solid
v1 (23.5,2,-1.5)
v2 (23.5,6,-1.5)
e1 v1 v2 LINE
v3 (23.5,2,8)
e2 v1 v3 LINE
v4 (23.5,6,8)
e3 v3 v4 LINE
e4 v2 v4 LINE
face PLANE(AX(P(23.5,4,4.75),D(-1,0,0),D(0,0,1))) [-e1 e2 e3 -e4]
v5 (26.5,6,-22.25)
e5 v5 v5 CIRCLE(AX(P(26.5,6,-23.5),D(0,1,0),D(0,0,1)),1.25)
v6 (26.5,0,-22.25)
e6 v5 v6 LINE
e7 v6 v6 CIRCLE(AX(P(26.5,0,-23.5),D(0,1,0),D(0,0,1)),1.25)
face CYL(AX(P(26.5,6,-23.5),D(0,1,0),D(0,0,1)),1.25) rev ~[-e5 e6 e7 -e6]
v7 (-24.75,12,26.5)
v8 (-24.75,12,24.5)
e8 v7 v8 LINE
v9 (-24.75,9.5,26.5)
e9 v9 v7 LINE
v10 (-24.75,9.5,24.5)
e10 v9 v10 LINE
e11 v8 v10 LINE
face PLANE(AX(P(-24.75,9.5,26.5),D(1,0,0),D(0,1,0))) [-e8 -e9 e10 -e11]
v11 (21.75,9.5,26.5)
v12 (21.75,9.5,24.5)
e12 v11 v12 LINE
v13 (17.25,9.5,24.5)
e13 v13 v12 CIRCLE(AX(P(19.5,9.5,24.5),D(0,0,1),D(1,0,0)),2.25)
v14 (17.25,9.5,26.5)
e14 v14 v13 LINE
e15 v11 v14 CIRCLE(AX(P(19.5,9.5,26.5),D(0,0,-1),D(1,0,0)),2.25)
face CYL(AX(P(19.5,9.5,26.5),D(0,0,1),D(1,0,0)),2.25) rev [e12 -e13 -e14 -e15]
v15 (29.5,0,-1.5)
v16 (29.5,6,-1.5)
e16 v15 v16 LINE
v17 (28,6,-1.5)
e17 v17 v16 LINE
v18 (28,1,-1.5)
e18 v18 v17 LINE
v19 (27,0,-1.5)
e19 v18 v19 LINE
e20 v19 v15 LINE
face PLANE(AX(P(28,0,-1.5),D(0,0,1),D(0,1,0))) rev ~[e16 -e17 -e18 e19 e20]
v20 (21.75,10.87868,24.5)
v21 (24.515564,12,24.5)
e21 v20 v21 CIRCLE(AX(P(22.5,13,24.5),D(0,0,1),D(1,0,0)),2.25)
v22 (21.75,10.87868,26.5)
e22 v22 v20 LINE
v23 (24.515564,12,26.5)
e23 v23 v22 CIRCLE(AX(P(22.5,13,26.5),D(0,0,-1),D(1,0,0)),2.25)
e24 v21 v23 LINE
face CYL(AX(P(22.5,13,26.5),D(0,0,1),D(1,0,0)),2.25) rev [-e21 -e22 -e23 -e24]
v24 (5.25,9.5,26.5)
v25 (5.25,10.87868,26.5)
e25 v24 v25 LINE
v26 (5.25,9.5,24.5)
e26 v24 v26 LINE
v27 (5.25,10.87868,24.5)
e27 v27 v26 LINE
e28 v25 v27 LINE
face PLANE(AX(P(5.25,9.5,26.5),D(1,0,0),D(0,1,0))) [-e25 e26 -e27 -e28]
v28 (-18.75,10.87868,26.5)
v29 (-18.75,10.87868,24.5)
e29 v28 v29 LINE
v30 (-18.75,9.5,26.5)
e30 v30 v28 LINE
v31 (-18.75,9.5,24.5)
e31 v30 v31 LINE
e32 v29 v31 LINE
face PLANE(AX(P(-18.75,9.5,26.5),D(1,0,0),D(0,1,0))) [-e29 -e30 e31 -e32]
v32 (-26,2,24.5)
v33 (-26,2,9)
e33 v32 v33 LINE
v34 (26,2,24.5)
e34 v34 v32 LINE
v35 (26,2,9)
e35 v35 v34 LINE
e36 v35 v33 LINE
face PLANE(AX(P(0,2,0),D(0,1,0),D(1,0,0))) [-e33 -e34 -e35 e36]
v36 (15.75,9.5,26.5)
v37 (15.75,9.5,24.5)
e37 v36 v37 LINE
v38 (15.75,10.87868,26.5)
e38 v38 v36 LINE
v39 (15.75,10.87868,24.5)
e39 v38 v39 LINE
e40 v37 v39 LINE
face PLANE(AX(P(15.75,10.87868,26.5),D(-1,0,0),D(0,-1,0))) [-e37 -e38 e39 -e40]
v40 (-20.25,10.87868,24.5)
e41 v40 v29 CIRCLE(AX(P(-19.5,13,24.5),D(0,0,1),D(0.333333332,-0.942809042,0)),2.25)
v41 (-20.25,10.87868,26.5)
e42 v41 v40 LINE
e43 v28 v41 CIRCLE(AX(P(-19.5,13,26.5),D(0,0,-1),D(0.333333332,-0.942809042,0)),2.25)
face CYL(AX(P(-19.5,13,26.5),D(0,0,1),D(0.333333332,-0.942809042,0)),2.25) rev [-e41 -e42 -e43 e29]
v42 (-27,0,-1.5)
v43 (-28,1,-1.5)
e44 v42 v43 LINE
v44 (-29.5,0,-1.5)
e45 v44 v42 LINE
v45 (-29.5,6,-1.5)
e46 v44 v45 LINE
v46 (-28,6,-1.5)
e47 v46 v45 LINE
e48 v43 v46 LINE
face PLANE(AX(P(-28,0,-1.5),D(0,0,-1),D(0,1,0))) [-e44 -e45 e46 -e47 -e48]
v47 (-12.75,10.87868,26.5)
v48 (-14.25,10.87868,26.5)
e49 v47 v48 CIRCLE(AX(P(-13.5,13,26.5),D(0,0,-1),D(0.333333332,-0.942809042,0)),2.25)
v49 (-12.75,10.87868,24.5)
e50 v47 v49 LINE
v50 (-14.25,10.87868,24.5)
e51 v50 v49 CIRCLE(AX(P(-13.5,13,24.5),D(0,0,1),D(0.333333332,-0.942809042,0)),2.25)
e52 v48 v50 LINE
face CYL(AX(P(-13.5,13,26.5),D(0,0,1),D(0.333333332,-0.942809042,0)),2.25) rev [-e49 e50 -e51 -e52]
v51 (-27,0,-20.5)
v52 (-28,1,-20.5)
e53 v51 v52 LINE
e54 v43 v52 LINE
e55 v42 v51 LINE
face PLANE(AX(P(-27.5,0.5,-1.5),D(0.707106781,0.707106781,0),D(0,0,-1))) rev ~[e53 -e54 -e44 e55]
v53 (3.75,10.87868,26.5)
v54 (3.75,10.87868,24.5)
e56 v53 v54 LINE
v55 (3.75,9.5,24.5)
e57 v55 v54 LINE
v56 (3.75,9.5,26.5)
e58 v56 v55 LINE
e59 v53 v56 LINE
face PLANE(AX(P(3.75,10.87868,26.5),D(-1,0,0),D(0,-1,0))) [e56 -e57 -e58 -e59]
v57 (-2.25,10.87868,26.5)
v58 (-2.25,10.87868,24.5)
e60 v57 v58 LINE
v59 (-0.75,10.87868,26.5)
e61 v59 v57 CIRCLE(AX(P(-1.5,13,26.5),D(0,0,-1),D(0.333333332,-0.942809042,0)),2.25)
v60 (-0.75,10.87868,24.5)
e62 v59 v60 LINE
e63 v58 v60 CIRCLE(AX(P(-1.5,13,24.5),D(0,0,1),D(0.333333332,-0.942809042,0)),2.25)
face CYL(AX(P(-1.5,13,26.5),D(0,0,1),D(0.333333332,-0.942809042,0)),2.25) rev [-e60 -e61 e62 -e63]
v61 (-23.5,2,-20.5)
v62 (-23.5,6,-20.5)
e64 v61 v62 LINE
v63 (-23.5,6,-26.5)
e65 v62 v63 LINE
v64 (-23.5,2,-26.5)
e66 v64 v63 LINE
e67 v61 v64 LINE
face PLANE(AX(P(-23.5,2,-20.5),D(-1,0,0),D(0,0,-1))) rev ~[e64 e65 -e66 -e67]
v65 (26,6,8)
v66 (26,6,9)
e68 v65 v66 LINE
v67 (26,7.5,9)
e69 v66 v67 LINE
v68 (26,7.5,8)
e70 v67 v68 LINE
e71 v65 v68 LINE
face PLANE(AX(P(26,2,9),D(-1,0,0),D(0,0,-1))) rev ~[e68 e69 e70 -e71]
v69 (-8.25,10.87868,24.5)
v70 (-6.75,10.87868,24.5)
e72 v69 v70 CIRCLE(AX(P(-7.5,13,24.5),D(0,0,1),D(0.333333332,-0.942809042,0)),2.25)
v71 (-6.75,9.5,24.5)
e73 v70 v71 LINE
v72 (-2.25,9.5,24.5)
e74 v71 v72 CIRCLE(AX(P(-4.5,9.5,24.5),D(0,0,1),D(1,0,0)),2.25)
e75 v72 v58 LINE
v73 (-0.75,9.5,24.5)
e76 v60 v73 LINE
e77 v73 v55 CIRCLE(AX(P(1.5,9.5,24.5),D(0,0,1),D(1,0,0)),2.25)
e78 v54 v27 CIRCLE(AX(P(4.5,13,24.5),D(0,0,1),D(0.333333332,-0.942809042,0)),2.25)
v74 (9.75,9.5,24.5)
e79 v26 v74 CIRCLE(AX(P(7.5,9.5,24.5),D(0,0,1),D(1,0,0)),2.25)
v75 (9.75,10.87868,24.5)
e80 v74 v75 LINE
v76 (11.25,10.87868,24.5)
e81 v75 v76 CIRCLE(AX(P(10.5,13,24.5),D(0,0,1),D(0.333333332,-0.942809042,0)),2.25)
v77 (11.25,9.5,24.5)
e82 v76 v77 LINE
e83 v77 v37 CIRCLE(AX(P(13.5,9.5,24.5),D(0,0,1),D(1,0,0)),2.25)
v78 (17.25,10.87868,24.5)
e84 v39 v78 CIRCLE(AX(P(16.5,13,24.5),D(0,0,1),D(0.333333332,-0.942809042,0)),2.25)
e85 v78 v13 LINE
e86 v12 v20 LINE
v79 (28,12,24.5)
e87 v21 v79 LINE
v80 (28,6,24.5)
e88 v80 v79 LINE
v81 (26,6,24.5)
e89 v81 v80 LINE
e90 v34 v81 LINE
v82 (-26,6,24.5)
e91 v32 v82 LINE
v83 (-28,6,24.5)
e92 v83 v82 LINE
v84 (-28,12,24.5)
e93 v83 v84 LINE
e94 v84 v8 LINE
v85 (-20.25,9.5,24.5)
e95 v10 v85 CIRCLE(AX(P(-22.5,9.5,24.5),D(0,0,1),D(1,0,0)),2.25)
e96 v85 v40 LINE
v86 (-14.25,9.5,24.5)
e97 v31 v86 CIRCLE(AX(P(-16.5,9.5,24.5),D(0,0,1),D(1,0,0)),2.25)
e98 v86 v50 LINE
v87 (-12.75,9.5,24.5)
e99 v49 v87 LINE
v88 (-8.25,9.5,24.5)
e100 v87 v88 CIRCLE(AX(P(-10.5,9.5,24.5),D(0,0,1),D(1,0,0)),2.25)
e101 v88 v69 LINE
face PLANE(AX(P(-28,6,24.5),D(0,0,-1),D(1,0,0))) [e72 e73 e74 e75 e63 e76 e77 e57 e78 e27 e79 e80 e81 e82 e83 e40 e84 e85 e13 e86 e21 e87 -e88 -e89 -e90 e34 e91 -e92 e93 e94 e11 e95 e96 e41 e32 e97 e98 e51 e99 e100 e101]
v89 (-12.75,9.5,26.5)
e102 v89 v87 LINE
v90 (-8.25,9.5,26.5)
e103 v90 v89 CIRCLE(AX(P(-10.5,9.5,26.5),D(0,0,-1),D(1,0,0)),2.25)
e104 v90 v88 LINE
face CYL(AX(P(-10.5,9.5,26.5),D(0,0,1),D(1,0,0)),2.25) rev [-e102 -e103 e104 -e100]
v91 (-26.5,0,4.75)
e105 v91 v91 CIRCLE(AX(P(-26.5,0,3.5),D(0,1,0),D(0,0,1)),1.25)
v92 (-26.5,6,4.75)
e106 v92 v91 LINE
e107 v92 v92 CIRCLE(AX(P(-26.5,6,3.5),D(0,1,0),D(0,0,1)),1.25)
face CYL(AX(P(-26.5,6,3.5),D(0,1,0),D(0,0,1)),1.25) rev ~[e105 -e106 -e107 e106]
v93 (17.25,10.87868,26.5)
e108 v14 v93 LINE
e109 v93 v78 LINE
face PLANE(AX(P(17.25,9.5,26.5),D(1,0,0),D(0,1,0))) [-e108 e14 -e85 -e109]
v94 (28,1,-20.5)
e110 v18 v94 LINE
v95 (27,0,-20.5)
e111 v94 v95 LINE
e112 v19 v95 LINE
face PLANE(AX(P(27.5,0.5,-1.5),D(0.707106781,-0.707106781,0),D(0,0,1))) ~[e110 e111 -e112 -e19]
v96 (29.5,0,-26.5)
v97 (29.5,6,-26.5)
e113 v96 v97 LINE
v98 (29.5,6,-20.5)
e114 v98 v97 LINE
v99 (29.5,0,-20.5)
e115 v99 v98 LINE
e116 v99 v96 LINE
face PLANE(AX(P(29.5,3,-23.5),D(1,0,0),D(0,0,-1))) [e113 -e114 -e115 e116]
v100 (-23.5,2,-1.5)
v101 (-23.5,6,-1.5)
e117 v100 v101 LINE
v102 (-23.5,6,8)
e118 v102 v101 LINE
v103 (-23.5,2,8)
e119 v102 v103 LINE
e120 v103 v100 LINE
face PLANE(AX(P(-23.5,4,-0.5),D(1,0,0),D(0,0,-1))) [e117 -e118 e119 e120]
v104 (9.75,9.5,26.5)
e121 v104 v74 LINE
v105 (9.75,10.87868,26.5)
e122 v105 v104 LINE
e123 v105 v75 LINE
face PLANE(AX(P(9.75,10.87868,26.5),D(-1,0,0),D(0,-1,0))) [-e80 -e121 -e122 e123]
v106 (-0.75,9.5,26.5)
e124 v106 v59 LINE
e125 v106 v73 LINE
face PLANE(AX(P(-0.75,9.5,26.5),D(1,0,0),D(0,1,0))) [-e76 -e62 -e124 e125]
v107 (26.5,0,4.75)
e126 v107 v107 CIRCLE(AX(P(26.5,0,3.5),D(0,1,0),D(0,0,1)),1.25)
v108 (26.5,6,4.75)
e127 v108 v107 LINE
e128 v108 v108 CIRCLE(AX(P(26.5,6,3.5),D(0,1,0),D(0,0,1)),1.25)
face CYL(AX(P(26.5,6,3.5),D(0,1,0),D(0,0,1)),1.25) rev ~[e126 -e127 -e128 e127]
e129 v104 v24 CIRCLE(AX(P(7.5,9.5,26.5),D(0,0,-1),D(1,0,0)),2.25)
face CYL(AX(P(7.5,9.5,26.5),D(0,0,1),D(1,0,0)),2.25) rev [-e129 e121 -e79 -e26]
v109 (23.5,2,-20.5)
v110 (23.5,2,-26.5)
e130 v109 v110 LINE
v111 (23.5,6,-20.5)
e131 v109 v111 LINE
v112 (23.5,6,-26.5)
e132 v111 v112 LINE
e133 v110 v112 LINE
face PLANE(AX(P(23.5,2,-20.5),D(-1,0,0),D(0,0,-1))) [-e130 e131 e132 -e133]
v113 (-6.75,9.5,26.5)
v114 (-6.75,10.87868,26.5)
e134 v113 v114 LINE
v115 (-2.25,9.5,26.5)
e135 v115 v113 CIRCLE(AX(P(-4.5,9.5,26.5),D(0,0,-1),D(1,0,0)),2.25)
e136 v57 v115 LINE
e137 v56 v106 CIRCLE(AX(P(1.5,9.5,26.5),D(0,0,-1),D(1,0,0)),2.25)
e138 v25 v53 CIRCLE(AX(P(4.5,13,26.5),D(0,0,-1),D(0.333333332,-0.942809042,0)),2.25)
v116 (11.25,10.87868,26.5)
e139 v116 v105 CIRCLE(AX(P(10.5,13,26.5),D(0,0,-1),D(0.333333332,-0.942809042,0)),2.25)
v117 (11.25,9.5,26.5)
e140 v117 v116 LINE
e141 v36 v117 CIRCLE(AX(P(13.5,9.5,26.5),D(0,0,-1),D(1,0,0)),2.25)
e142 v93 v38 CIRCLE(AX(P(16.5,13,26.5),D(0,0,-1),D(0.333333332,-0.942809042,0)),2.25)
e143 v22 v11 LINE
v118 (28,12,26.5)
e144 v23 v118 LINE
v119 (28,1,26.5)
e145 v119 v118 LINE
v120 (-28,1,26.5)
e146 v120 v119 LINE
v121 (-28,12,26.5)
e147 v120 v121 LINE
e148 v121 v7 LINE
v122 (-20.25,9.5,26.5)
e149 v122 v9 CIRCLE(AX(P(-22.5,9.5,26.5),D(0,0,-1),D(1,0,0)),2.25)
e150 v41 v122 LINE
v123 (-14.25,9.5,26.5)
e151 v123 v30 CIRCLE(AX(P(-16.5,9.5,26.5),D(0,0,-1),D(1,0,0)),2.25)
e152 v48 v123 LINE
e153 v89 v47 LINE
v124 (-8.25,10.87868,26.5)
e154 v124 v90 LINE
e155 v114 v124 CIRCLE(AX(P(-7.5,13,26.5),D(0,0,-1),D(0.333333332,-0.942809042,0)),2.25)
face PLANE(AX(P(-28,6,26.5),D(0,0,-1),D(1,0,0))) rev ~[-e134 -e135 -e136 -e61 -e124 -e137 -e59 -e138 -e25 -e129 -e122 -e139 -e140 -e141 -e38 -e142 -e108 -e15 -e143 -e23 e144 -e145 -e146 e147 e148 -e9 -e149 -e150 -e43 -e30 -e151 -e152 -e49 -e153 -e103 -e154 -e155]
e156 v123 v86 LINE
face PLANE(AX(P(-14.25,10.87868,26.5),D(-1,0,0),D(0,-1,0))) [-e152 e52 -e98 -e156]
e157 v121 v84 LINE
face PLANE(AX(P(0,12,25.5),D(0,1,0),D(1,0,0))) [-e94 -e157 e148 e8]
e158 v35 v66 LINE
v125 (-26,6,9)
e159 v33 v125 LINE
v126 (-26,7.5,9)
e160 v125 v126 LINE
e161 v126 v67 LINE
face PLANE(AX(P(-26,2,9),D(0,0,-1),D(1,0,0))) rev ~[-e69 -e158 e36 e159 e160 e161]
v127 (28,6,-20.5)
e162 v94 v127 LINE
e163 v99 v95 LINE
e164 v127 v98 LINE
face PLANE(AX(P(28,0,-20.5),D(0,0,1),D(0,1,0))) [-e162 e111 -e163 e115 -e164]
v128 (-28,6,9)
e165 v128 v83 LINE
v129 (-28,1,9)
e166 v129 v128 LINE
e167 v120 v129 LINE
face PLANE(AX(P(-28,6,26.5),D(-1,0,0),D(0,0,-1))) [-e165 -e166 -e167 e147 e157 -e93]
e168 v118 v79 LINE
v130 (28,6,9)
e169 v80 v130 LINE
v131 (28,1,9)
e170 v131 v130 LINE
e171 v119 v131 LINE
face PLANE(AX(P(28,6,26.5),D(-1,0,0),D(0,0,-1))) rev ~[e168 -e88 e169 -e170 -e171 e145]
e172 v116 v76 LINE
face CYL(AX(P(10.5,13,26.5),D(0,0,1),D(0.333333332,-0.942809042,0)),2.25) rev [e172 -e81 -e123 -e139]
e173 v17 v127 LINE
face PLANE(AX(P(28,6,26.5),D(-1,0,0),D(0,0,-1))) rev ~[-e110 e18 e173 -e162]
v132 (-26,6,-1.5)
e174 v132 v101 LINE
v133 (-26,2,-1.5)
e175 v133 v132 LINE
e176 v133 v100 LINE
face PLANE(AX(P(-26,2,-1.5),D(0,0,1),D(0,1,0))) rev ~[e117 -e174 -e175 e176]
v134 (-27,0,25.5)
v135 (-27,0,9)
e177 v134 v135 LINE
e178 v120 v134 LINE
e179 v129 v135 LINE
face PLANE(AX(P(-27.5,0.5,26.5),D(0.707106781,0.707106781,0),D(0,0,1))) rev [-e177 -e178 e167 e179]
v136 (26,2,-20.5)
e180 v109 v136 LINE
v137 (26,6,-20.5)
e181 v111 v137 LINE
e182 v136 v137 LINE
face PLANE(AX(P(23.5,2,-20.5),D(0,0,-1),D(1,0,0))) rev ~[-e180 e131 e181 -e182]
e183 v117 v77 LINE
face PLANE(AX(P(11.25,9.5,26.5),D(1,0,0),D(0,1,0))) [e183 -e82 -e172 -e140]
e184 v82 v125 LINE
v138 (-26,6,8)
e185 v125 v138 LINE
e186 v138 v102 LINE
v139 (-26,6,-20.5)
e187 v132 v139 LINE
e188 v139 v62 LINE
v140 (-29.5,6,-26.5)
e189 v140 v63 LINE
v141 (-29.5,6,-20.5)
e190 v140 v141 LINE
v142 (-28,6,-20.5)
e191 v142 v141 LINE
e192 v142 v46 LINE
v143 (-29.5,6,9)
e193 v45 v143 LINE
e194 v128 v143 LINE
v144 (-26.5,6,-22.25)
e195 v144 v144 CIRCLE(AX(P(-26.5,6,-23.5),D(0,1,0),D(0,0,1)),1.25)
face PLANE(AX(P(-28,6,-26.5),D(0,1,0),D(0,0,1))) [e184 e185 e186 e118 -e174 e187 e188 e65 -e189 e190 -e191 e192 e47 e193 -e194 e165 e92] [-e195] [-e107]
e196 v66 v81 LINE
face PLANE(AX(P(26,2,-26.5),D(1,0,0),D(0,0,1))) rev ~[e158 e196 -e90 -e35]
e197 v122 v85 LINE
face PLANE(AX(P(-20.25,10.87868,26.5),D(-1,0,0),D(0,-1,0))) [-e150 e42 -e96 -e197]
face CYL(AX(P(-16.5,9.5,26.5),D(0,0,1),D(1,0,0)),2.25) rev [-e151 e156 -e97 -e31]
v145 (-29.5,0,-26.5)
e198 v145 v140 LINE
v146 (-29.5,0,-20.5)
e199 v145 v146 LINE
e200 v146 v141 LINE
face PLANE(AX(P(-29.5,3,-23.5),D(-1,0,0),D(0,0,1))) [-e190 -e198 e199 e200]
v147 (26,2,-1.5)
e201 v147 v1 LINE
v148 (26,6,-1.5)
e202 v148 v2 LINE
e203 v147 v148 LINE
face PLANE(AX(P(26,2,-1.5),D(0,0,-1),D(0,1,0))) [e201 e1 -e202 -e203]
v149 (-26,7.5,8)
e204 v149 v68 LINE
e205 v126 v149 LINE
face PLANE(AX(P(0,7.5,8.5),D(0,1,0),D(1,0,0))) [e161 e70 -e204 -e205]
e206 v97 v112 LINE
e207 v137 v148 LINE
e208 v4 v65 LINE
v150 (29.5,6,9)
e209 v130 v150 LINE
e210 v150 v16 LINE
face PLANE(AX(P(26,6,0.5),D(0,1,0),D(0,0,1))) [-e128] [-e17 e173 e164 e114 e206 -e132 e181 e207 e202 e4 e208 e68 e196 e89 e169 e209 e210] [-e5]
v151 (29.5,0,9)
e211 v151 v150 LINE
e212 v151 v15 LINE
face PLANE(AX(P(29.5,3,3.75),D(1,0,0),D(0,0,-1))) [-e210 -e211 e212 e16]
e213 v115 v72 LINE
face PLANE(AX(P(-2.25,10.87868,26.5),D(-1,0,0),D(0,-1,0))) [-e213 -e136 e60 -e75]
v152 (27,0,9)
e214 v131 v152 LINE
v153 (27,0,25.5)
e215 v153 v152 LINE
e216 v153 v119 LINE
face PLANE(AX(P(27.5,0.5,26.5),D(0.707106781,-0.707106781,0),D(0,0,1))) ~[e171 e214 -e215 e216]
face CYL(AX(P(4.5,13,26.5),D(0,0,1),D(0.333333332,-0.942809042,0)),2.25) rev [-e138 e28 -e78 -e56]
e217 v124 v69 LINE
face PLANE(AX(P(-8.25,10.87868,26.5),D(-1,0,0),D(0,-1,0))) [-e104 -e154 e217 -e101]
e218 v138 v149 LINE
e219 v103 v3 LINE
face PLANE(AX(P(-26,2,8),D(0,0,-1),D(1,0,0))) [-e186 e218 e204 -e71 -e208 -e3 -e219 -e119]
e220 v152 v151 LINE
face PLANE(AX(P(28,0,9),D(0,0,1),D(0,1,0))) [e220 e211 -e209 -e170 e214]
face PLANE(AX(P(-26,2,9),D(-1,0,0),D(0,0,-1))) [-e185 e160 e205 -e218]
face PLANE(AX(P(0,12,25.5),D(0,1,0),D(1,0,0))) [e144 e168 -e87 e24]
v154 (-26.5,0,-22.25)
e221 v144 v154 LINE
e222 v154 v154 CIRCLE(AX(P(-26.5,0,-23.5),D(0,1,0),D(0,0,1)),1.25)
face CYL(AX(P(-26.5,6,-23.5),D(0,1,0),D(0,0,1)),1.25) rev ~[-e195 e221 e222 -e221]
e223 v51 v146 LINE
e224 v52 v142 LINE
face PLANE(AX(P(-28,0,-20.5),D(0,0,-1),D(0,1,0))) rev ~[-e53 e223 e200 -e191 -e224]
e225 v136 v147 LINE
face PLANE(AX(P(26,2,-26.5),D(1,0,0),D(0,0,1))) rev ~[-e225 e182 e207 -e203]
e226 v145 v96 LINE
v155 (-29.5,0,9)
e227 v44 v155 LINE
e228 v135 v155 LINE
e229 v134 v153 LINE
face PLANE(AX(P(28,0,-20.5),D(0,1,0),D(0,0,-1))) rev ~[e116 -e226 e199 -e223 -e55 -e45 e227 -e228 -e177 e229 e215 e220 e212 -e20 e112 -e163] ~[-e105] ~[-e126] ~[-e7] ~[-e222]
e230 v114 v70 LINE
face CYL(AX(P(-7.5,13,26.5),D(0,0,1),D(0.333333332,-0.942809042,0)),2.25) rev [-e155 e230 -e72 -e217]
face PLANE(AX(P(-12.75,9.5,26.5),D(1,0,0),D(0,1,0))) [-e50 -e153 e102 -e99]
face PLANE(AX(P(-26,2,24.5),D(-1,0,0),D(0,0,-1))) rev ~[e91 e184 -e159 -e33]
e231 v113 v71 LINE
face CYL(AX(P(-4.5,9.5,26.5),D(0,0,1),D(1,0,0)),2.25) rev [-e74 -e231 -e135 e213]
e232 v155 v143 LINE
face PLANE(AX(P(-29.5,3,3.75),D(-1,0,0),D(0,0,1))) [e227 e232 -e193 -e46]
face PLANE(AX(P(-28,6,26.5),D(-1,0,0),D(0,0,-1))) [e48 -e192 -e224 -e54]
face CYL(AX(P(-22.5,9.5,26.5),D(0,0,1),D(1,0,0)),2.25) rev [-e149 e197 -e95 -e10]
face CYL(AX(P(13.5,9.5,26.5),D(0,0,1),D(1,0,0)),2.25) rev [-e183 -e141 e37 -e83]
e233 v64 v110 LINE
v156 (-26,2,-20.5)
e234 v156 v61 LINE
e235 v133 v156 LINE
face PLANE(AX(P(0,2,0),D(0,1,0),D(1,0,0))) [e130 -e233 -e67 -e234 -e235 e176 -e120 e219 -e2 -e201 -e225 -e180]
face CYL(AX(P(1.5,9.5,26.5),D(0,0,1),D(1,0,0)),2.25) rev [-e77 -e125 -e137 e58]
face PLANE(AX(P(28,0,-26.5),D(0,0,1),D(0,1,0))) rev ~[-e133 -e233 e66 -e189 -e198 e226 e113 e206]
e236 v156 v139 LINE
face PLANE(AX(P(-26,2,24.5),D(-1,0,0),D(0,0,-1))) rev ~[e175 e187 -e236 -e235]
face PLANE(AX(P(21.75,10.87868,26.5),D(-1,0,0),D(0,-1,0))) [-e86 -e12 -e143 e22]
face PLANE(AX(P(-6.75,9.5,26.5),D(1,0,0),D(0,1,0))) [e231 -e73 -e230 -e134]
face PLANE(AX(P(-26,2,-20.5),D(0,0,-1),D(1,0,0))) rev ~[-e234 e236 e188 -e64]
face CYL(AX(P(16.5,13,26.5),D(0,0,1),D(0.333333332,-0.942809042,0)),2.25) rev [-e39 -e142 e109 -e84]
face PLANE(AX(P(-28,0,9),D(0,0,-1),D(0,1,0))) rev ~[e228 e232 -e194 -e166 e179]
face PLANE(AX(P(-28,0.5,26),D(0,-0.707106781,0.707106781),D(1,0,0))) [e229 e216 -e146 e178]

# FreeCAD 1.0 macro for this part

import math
import FreeCAD as App
import Part
import Sketcher

V = App.Vector
Q = App.Units.Quantity


def edges_at(feature, points):
    """Names of the edges that pass closest to the given points."""
    edges = feature.Shape.Edges
    near = lambda p: min(range(len(edges)), key=lambda i: edges[i].distToShape(Part.Vertex(*p))[0])
    return sorted({f"Edge{near(p) + 1}" for p in points})


def add_polygon(sketch, points):
    """Adds a closed chain of lines whose ends are joined by coincident constraints."""
    first, n = sketch.GeometryCount, len(points)
    for a, b in zip(points, points[1:] + points[:1]):
        sketch.addGeometry(Part.LineSegment(App.Vector(*a, 0), App.Vector(*b, 0)), False)
    for i in range(n):
        sketch.addConstraint(Sketcher.Constraint("Coincident", first + i, 2, first + (i + 1) % n, 1))

doc = App.newDocument("Part")
body = doc.addObject("PartDesign::Body", "Body")

# Sketch on XZ plane
sketch1 = doc.addObject("Sketcher::SketchObject", "Sketch")
body.addObject(sketch1)
sketch1.AttachmentSupport = (doc.XZ_Plane, [""])
sketch1.MapMode = "FlatFace"
add_polygon(sketch1, [(-28, -26), (-28, 26), (28, 26), (28, -26)])  # lines 0-3
sketch1.addConstraint(Sketcher.Constraint("Vertical", 0))
sketch1.addConstraint(Sketcher.Constraint("Horizontal", 1))
sketch1.addConstraint(Sketcher.Constraint("Vertical", 2))
sketch1.addConstraint(Sketcher.Constraint("Horizontal", 3))
sketch1.addConstraint(Sketcher.Constraint("Symmetric", 0, 2, 2, 2, -1, 1))
sketch1.addConstraint(Sketcher.Constraint("DistanceX", 1, 1, 1, 2, Q("56 mm")))
sketch1.addConstraint(Sketcher.Constraint("DistanceY", 0, 1, 0, 2, Q("53 mm")))
pad1 = doc.addObject("PartDesign::Pad", "Pad")
body.addObject(pad1)
pad1.Profile = sketch1
pad1.Length = 2
pad1.Reversed = True

# Sketch on XZ plane
sketch2 = doc.addObject("Sketcher::SketchObject", "Sketch001")
body.addObject(sketch2)
sketch2.AttachmentSupport = (doc.XZ_Plane, [""])
sketch2.MapMode = "FlatFace"
sketch2.AttachmentOffset = App.Placement(V(0, 0, -2), App.Rotation())
add_polygon(sketch2, [(-26, -26.5), (-28, -26.5), (-28, 26.5), (28, 26.5), (28, -26.5), (26, -26.5), (26, 24.5), (-26, 24.5)])  # lines 0-7
sketch2.addConstraint(Sketcher.Constraint("Horizontal", 0))
sketch2.addConstraint(Sketcher.Constraint("Vertical", 1))
sketch2.addConstraint(Sketcher.Constraint("Horizontal", 2))
sketch2.addConstraint(Sketcher.Constraint("Vertical", 3))
sketch2.addConstraint(Sketcher.Constraint("Horizontal", 4))
sketch2.addConstraint(Sketcher.Constraint("Vertical", 5))
sketch2.addConstraint(Sketcher.Constraint("Horizontal", 6))
sketch2.addConstraint(Sketcher.Constraint("Vertical", 7))
sketch2.addConstraint(Sketcher.Constraint("Symmetric", 0, 2, 2, 2, -1, 1))
sketch2.addConstraint(Sketcher.Constraint("Symmetric", 4, 2, 7, 2, -2))
sketch2.addConstraint(Sketcher.Constraint("DistanceX", 0, 2, 0, 1, Q("2 mm")))
sketch2.addConstraint(Sketcher.Constraint("DistanceX", 2, 1, 2, 2, Q("56 mm")))
sketch2.addConstraint(Sketcher.Constraint("DistanceY", 1, 1, 1, 2, Q("53 mm")))
sketch2.addConstraint(Sketcher.Constraint("DistanceY", 5, 1, 5, 2, Q("51 mm")))
pad2 = doc.addObject("PartDesign::Pad", "Pad001")
body.addObject(pad2)
pad2.Profile = sketch2
pad2.Length = 4
pad2.Reversed = True

# Sketch on XZ plane
sketch3 = doc.addObject("Sketcher::SketchObject", "Sketch002")
body.addObject(sketch3)
sketch3.AttachmentSupport = (doc.XZ_Plane, [""])
sketch3.MapMode = "FlatFace"
sketch3.AttachmentOffset = App.Placement(V(0, 0, -6), App.Rotation())
add_polygon(sketch3, [(-28, 24.5), (-28, 26.5), (28, 26.5), (28, 24.5)])  # lines 0-3
sketch3.addConstraint(Sketcher.Constraint("Vertical", 0))
sketch3.addConstraint(Sketcher.Constraint("Horizontal", 1))
sketch3.addConstraint(Sketcher.Constraint("Vertical", 2))
sketch3.addConstraint(Sketcher.Constraint("Horizontal", 3))
sketch3.addConstraint(Sketcher.Constraint("DistanceX", 1, 1, 1, 2, Q("56 mm")))
sketch3.addConstraint(Sketcher.Constraint("DistanceY", 0, 1, 0, 2, Q("2 mm")))
sketch3.addConstraint(Sketcher.Constraint("DistanceX", 0, 2, -1, 1, Q("28 mm")))
sketch3.addConstraint(Sketcher.Constraint("DistanceY", -1, 1, 0, 2, Q("26.5 mm")))
pad3 = doc.addObject("PartDesign::Pad", "Pad002")
body.addObject(pad3)
pad3.Profile = sketch3
pad3.Length = 6
pad3.Reversed = True

# Sketch on XZ plane
sketch4 = doc.addObject("Sketcher::SketchObject", "Sketch003")
body.addObject(sketch4)
sketch4.AttachmentSupport = (doc.XZ_Plane, [""])
sketch4.MapMode = "FlatFace"
sketch4.AttachmentOffset = App.Placement(V(0, 0, -2), App.Rotation())
add_polygon(sketch4, [(-26, -26.5), (-26, -20.5), (-23.5, -20.5), (-23.5, -26.5)])  # lines 0-3
sketch4.addConstraint(Sketcher.Constraint("Vertical", 0))
sketch4.addConstraint(Sketcher.Constraint("Horizontal", 1))
sketch4.addConstraint(Sketcher.Constraint("Vertical", 2))
sketch4.addConstraint(Sketcher.Constraint("Horizontal", 3))
sketch4.addConstraint(Sketcher.Constraint("DistanceY", 0, 1, 0, 2, Q("6 mm")))
sketch4.addConstraint(Sketcher.Constraint("DistanceX", 1, 1, 1, 2, Q("2.5 mm")))
sketch4.addConstraint(Sketcher.Constraint("DistanceX", 0, 2, -1, 1, Q("26 mm")))
sketch4.addConstraint(Sketcher.Constraint("DistanceY", 0, 2, -1, 1, Q("20.5 mm")))
pad4 = doc.addObject("PartDesign::Pad", "Pad003")
body.addObject(pad4)
pad4.Profile = sketch4
pad4.Length = 4
pad4.Reversed = True

# Sketch on XZ plane
sketch5 = doc.addObject("Sketcher::SketchObject", "Sketch004")
body.addObject(sketch5)
sketch5.AttachmentSupport = (doc.XZ_Plane, [""])
sketch5.MapMode = "FlatFace"
sketch5.AttachmentOffset = App.Placement(V(0, 0, -2), App.Rotation())
add_polygon(sketch5, [(23.5, -26.5), (23.5, -20.5), (26, -20.5), (26, -26.5)])  # lines 0-3
sketch5.addConstraint(Sketcher.Constraint("Vertical", 0))
sketch5.addConstraint(Sketcher.Constraint("Horizontal", 1))
sketch5.addConstraint(Sketcher.Constraint("Vertical", 2))
sketch5.addConstraint(Sketcher.Constraint("Horizontal", 3))
sketch5.addConstraint(Sketcher.Constraint("DistanceY", 0, 1, 0, 2, Q("6 mm")))
sketch5.addConstraint(Sketcher.Constraint("DistanceX", 1, 1, 1, 2, Q("2.5 mm")))
sketch5.addConstraint(Sketcher.Constraint("DistanceX", -1, 1, 1, 2, Q("26 mm")))
sketch5.addConstraint(Sketcher.Constraint("DistanceY", 0, 2, -1, 1, Q("20.5 mm")))
pad5 = doc.addObject("PartDesign::Pad", "Pad004")
body.addObject(pad5)
pad5.Profile = sketch5
pad5.Length = 4
pad5.Reversed = True

# Sketch on YZ plane
sketch6 = doc.addObject("Sketcher::SketchObject", "Sketch005")
body.addObject(sketch6)
sketch6.AttachmentSupport = (doc.YZ_Plane, [""])
sketch6.MapMode = "FlatFace"
sketch6.AttachmentOffset = App.Placement(V(0, 0, -28), App.Rotation())
add_polygon(sketch6, [(6, -26), (0, -26), (0, -20), (6, -20)])  # lines 0-3
sketch6.addConstraint(Sketcher.Constraint("Horizontal", 0))
sketch6.addConstraint(Sketcher.Constraint("Vertical", 1))
sketch6.addConstraint(Sketcher.Constraint("Horizontal", 2))
sketch6.addConstraint(Sketcher.Constraint("Vertical", 3))
sketch6.addConstraint(Sketcher.Constraint("PointOnObject", 0, 2, -2))
sketch6.addConstraint(Sketcher.Constraint("Equal", 2, 1))
sketch6.addConstraint(Sketcher.Constraint("DistanceX", 0, 2, 0, 1, Q("6 mm")))
sketch6.addConstraint(Sketcher.Constraint("DistanceY", 0, 2, -1, 1, Q("26.5 mm")))
pad6 = doc.addObject("PartDesign::Pad", "Pad005")
body.addObject(pad6)
pad6.Profile = sketch6
pad6.Length = 1.5
pad6.Reversed = True

# Sketch on YZ plane
sketch7 = doc.addObject("Sketcher::SketchObject", "Sketch006")
body.addObject(sketch7)
sketch7.AttachmentSupport = (doc.YZ_Plane, [""])
sketch7.MapMode = "FlatFace"
sketch7.AttachmentOffset = App.Placement(V(0, 0, 28), App.Rotation())
add_polygon(sketch7, [(6, -20), (0, -20), (0, -26), (6, -26)])  # lines 0-3
sketch7.addConstraint(Sketcher.Constraint("Horizontal", 0))
sketch7.addConstraint(Sketcher.Constraint("Vertical", 1))
sketch7.addConstraint(Sketcher.Constraint("Horizontal", 2))
sketch7.addConstraint(Sketcher.Constraint("Vertical", 3))
sketch7.addConstraint(Sketcher.Constraint("PointOnObject", 0, 2, -2))
sketch7.addConstraint(Sketcher.Constraint("Equal", 2, 1))
sketch7.addConstraint(Sketcher.Constraint("DistanceX", 0, 2, 0, 1, Q("6 mm")))
sketch7.addConstraint(Sketcher.Constraint("DistanceY", 0, 2, -1, 1, Q("20.5 mm")))
pad7 = doc.addObject("PartDesign::Pad", "Pad006")
body.addObject(pad7)
pad7.Profile = sketch7
pad7.Length = 1.5

# Sketch on YZ plane
sketch8 = doc.addObject("Sketcher::SketchObject", "Sketch007")
body.addObject(sketch8)
sketch8.AttachmentSupport = (doc.YZ_Plane, [""])
sketch8.MapMode = "FlatFace"
sketch8.AttachmentOffset = App.Placement(V(0, 0, 26), App.Rotation())
add_polygon(sketch8, [(6, -1.5), (2, -1.5), (2, 0.5), (6, 0.5)])  # lines 0-3
sketch8.addConstraint(Sketcher.Constraint("Horizontal", 0))
sketch8.addConstraint(Sketcher.Constraint("Vertical", 1))
sketch8.addConstraint(Sketcher.Constraint("Horizontal", 2))
sketch8.addConstraint(Sketcher.Constraint("Vertical", 3))
sketch8.addConstraint(Sketcher.Constraint("DistanceX", 0, 2, 0, 1, Q("4 mm")))
sketch8.addConstraint(Sketcher.Constraint("DistanceY", 1, 1, 1, 2, Q("2 mm")))
sketch8.addConstraint(Sketcher.Constraint("DistanceX", -1, 1, 0, 2, Q("2 mm")))
sketch8.addConstraint(Sketcher.Constraint("DistanceY", 0, 2, -1, 1, Q("1.5 mm")))
pad8 = doc.addObject("PartDesign::Pad", "Pad007")
body.addObject(pad8)
pad8.Profile = sketch8
pad8.Length = 2.5
pad8.Reversed = True

# Sketch on YZ plane
sketch9 = doc.addObject("Sketcher::SketchObject", "Sketch008")
body.addObject(sketch9)
sketch9.AttachmentSupport = (doc.YZ_Plane, [""])
sketch9.MapMode = "FlatFace"
sketch9.AttachmentOffset = App.Placement(V(0, 0, -26), App.Rotation())
add_polygon(sketch9, [(6, 0.5), (2, 0.5), (2, -1.5), (6, -1.5)])  # lines 0-3
sketch9.addConstraint(Sketcher.Constraint("Horizontal", 0))
sketch9.addConstraint(Sketcher.Constraint("Vertical", 1))
sketch9.addConstraint(Sketcher.Constraint("Horizontal", 2))
sketch9.addConstraint(Sketcher.Constraint("Vertical", 3))
sketch9.addConstraint(Sketcher.Constraint("DistanceX", 0, 2, 0, 1, Q("4 mm")))
sketch9.addConstraint(Sketcher.Constraint("DistanceY", 1, 2, 1, 1, Q("2 mm")))
sketch9.addConstraint(Sketcher.Constraint("DistanceX", -1, 1, 0, 2, Q("2 mm")))
sketch9.addConstraint(Sketcher.Constraint("DistanceY", -1, 1, 0, 2, Q("0.5 mm")))
pad9 = doc.addObject("PartDesign::Pad", "Pad008")
body.addObject(pad9)
pad9.Profile = sketch9
pad9.Length = 2.5

# Sketch on XZ plane
sketch10 = doc.addObject("Sketcher::SketchObject", "Sketch009")
body.addObject(sketch10)
sketch10.AttachmentSupport = (doc.XZ_Plane, [""])
sketch10.MapMode = "FlatFace"
sketch10.AttachmentOffset = App.Placement(V(0, 0, -2), App.Rotation())
add_polygon(sketch10, [(-26, 8), (-26, 9), (26, 9), (26, 8)])  # lines 0-3
sketch10.addConstraint(Sketcher.Constraint("Vertical", 0))
sketch10.addConstraint(Sketcher.Constraint("Horizontal", 1))
sketch10.addConstraint(Sketcher.Constraint("Vertical", 2))
sketch10.addConstraint(Sketcher.Constraint("Horizontal", 3))
sketch10.addConstraint(Sketcher.Constraint("DistanceX", 1, 1, 1, 2, Q("52 mm")))
sketch10.addConstraint(Sketcher.Constraint("DistanceY", 0, 1, 0, 2, Q("1 mm")))
sketch10.addConstraint(Sketcher.Constraint("DistanceX", 0, 2, -1, 1, Q("26 mm")))
sketch10.addConstraint(Sketcher.Constraint("DistanceY", -1, 1, 0, 2, Q("9 mm")))
pad10 = doc.addObject("PartDesign::Pad", "Pad009")
body.addObject(pad10)
pad10.Profile = sketch10
pad10.Length = 5.5
pad10.Reversed = True

# Sketch on XY plane
sketch11 = doc.addObject("Sketcher::SketchObject", "Sketch010")
body.addObject(sketch11)
sketch11.AttachmentSupport = (doc.XY_Plane, [""])
sketch11.MapMode = "FlatFace"
sketch11.AttachmentOffset = App.Placement(V(0, 0, 26.5), App.Rotation())
sketch11.addGeometry(Part.LineSegment(V(-24.8, 12, 0), V(-24.8, 9.5, 0)), False)
sketch11.addGeometry(Part.ArcOfCircle(Part.Circle(V(-22.5, 9.5, 0), V(0, 0, 1), 2.2), math.radians(180), math.radians(360)), False)
sketch11.addGeometry(Part.LineSegment(V(-20.2, 9.5, 0), V(-20.2, 10.9, 0)), False)
sketch11.addGeometry(Part.ArcOfCircle(Part.Circle(V(-19.5, 13, 0), V(0, 0, 1), 2.3), math.radians(-109), math.radians(-71)), False)
sketch11.addGeometry(Part.LineSegment(V(-18.8, 10.9, 0), V(-18.8, 9.5, 0)), False)
sketch11.addGeometry(Part.ArcOfCircle(Part.Circle(V(-16.5, 9.5, 0), V(0, 0, 1), 2.2), math.radians(180), math.radians(360)), False)
sketch11.addGeometry(Part.LineSegment(V(-14.2, 9.5, 0), V(-14.2, 10.9, 0)), False)
sketch11.addGeometry(Part.ArcOfCircle(Part.Circle(V(-13.5, 13, 0), V(0, 0, 1), 2.3), math.radians(-109), math.radians(-71)), False)
sketch11.addGeometry(Part.LineSegment(V(-12.8, 10.9, 0), V(-12.8, 9.5, 0)), False)
sketch11.addGeometry(Part.ArcOfCircle(Part.Circle(V(-10.5, 9.5, 0), V(0, 0, 1), 2.2), math.radians(180), math.radians(360)), False)
sketch11.addGeometry(Part.LineSegment(V(-8.2, 9.5, 0), V(-8.2, 10.9, 0)), False)
sketch11.addGeometry(Part.ArcOfCircle(Part.Circle(V(-7.5, 13, 0), V(0, 0, 1), 2.3), math.radians(-109), math.radians(-71)), False)
sketch11.addGeometry(Part.LineSegment(V(-6.8, 10.9, 0), V(-6.8, 9.5, 0)), False)
sketch11.addGeometry(Part.ArcOfCircle(Part.Circle(V(-4.5, 9.5, 0), V(0, 0, 1), 2.2), math.radians(180), math.radians(360)), False)
sketch11.addGeometry(Part.LineSegment(V(-2.2, 9.5, 0), V(-2.2, 10.9, 0)), False)
sketch11.addGeometry(Part.ArcOfCircle(Part.Circle(V(-1.5, 13, 0), V(0, 0, 1), 2.3), math.radians(-109), math.radians(-71)), False)
sketch11.addGeometry(Part.LineSegment(V(-0.8, 10.9, 0), V(-0.8, 9.5, 0)), False)
sketch11.addGeometry(Part.ArcOfCircle(Part.Circle(V(1.5, 9.5, 0), V(0, 0, 1), 2.2), math.radians(180), math.radians(360)), False)
sketch11.addGeometry(Part.LineSegment(V(3.8, 9.5, 0), V(3.8, 10.9, 0)), False)
sketch11.addGeometry(Part.ArcOfCircle(Part.Circle(V(4.5, 13, 0), V(0, 0, 1), 2.3), math.radians(-109), math.radians(-71)), False)
sketch11.addGeometry(Part.LineSegment(V(5.2, 10.9, 0), V(5.2, 9.5, 0)), False)
sketch11.addGeometry(Part.ArcOfCircle(Part.Circle(V(7.5, 9.5, 0), V(0, 0, 1), 2.2), math.radians(180), math.radians(360)), False)
sketch11.addGeometry(Part.LineSegment(V(9.8, 9.5, 0), V(9.8, 10.9, 0)), False)
sketch11.addGeometry(Part.ArcOfCircle(Part.Circle(V(10.5, 13, 0), V(0, 0, 1), 2.3), math.radians(-109), math.radians(-71)), False)
sketch11.addGeometry(Part.LineSegment(V(11.2, 10.9, 0), V(11.2, 9.5, 0)), False)
sketch11.addGeometry(Part.ArcOfCircle(Part.Circle(V(13.5, 9.5, 0), V(0, 0, 1), 2.2), math.radians(180), math.radians(360)), False)
sketch11.addGeometry(Part.LineSegment(V(15.8, 9.5, 0), V(15.8, 10.9, 0)), False)
sketch11.addGeometry(Part.ArcOfCircle(Part.Circle(V(16.5, 13, 0), V(0, 0, 1), 2.3), math.radians(-109), math.radians(-71)), False)
sketch11.addGeometry(Part.LineSegment(V(17.2, 10.9, 0), V(17.2, 9.5, 0)), False)
sketch11.addGeometry(Part.ArcOfCircle(Part.Circle(V(19.5, 9.5, 0), V(0, 0, 1), 2.2), math.radians(180), math.radians(360)), False)
sketch11.addGeometry(Part.LineSegment(V(21.8, 9.5, 0), V(21.8, 10.9, 0)), False)
sketch11.addGeometry(Part.ArcOfCircle(Part.Circle(V(22.5, 13, 0), V(0, 0, 1), 2.2), math.radians(-109), math.radians(0)), False)
sketch11.addGeometry(Part.LineSegment(V(24.8, 13, 0), V(-24.8, 12, 0)), False)
sketch11.addConstraint(Sketcher.Constraint("Tangent", 0, 2, 1, 1))
sketch11.addConstraint(Sketcher.Constraint("Tangent", 1, 2, 2, 1))
sketch11.addConstraint(Sketcher.Constraint("Coincident", 2, 2, 3, 1))
sketch11.addConstraint(Sketcher.Constraint("Coincident", 3, 2, 4, 1))
sketch11.addConstraint(Sketcher.Constraint("Tangent", 4, 2, 5, 1))
sketch11.addConstraint(Sketcher.Constraint("Tangent", 5, 2, 6, 1))
sketch11.addConstraint(Sketcher.Constraint("Coincident", 6, 2, 7, 1))
sketch11.addConstraint(Sketcher.Constraint("Coincident", 7, 2, 8, 1))
sketch11.addConstraint(Sketcher.Constraint("Tangent", 8, 2, 9, 1))
sketch11.addConstraint(Sketcher.Constraint("Tangent", 9, 2, 10, 1))
sketch11.addConstraint(Sketcher.Constraint("Coincident", 10, 2, 11, 1))
sketch11.addConstraint(Sketcher.Constraint("Coincident", 11, 2, 12, 1))
sketch11.addConstraint(Sketcher.Constraint("Tangent", 12, 2, 13, 1))
sketch11.addConstraint(Sketcher.Constraint("Tangent", 13, 2, 14, 1))
sketch11.addConstraint(Sketcher.Constraint("Coincident", 14, 2, 15, 1))
sketch11.addConstraint(Sketcher.Constraint("Coincident", 15, 2, 16, 1))
sketch11.addConstraint(Sketcher.Constraint("Tangent", 16, 2, 17, 1))
sketch11.addConstraint(Sketcher.Constraint("Tangent", 17, 2, 18, 1))
sketch11.addConstraint(Sketcher.Constraint("Coincident", 18, 2, 19, 1))
sketch11.addConstraint(Sketcher.Constraint("Coincident", 19, 2, 20, 1))
sketch11.addConstraint(Sketcher.Constraint("Tangent", 20, 2, 21, 1))
sketch11.addConstraint(Sketcher.Constraint("Tangent", 21, 2, 22, 1))
sketch11.addConstraint(Sketcher.Constraint("Coincident", 22, 2, 23, 1))
sketch11.addConstraint(Sketcher.Constraint("Coincident", 23, 2, 24, 1))
sketch11.addConstraint(Sketcher.Constraint("Tangent", 24, 2, 25, 1))
sketch11.addConstraint(Sketcher.Constraint("Tangent", 25, 2, 26, 1))
sketch11.addConstraint(Sketcher.Constraint("Coincident", 26, 2, 27, 1))
sketch11.addConstraint(Sketcher.Constraint("Coincident", 27, 2, 28, 1))
sketch11.addConstraint(Sketcher.Constraint("Tangent", 28, 2, 29, 1))
sketch11.addConstraint(Sketcher.Constraint("Tangent", 29, 2, 30, 1))
sketch11.addConstraint(Sketcher.Constraint("Coincident", 30, 2, 31, 1))
sketch11.addConstraint(Sketcher.Constraint("Coincident", 31, 2, 32, 1))
sketch11.addConstraint(Sketcher.Constraint("Coincident", 32, 2, 0, 1))
sketch11.addConstraint(Sketcher.Constraint("Vertical", 0))
sketch11.addConstraint(Sketcher.Constraint("Vertical", 2))
sketch11.addConstraint(Sketcher.Constraint("Vertical", 4))
sketch11.addConstraint(Sketcher.Constraint("Vertical", 6))
sketch11.addConstraint(Sketcher.Constraint("Vertical", 8))
sketch11.addConstraint(Sketcher.Constraint("Vertical", 10))
sketch11.addConstraint(Sketcher.Constraint("Vertical", 12))
sketch11.addConstraint(Sketcher.Constraint("Vertical", 14))
sketch11.addConstraint(Sketcher.Constraint("Vertical", 16))
sketch11.addConstraint(Sketcher.Constraint("Vertical", 18))
sketch11.addConstraint(Sketcher.Constraint("Vertical", 20))
sketch11.addConstraint(Sketcher.Constraint("Vertical", 22))
sketch11.addConstraint(Sketcher.Constraint("Vertical", 24))
sketch11.addConstraint(Sketcher.Constraint("Vertical", 26))
sketch11.addConstraint(Sketcher.Constraint("Vertical", 28))
sketch11.addConstraint(Sketcher.Constraint("Vertical", 30))
sketch11.addConstraint(Sketcher.Constraint("Equal", 1, 3))
sketch11.addConstraint(Sketcher.Constraint("Equal", 3, 5))
sketch11.addConstraint(Sketcher.Constraint("Equal", 5, 7))
sketch11.addConstraint(Sketcher.Constraint("Equal", 7, 9))
sketch11.addConstraint(Sketcher.Constraint("Equal", 9, 11))
sketch11.addConstraint(Sketcher.Constraint("Equal", 11, 13))
sketch11.addConstraint(Sketcher.Constraint("Equal", 13, 15))
sketch11.addConstraint(Sketcher.Constraint("Equal", 15, 17))
sketch11.addConstraint(Sketcher.Constraint("Equal", 17, 19))
sketch11.addConstraint(Sketcher.Constraint("Equal", 19, 21))
sketch11.addConstraint(Sketcher.Constraint("Equal", 21, 23))
sketch11.addConstraint(Sketcher.Constraint("Equal", 23, 25))
sketch11.addConstraint(Sketcher.Constraint("Equal", 25, 27))
sketch11.addConstraint(Sketcher.Constraint("Equal", 27, 29))
sketch11.addConstraint(Sketcher.Constraint("Equal", 29, 31))
sketch11.addConstraint(Sketcher.Constraint("Horizontal", 1, 3, 5, 3))
sketch11.addConstraint(Sketcher.Constraint("Horizontal", 3, 3, 7, 3))
sketch11.addConstraint(Sketcher.Constraint("Horizontal", 5, 3, 9, 3))
sketch11.addConstraint(Sketcher.Constraint("Horizontal", 7, 3, 11, 3))
sketch11.addConstraint(Sketcher.Constraint("Horizontal", 9, 3, 13, 3))
sketch11.addConstraint(Sketcher.Constraint("Horizontal", 11, 3, 15, 3))
sketch11.addConstraint(Sketcher.Constraint("Horizontal", 13, 3, 17, 3))
sketch11.addConstraint(Sketcher.Constraint("Horizontal", 15, 3, 19, 3))
sketch11.addConstraint(Sketcher.Constraint("Horizontal", 17, 3, 21, 3))
sketch11.addConstraint(Sketcher.Constraint("Horizontal", 19, 3, 23, 3))
sketch11.addConstraint(Sketcher.Constraint("Horizontal", 21, 3, 25, 3))
sketch11.addConstraint(Sketcher.Constraint("Horizontal", 23, 3, 27, 3))
sketch11.addConstraint(Sketcher.Constraint("Horizontal", 25, 3, 29, 3))
sketch11.addConstraint(Sketcher.Constraint("Horizontal", 27, 3, 31, 3))
sketch11.addConstraint(Sketcher.Constraint("Horizontal", 2, 2, 3, 2))
sketch11.addConstraint(Sketcher.Constraint("Horizontal", 3, 2, 6, 2))
sketch11.addConstraint(Sketcher.Constraint("Horizontal", 6, 2, 7, 2))
sketch11.addConstraint(Sketcher.Constraint("Horizontal", 7, 2, 10, 2))
sketch11.addConstraint(Sketcher.Constraint("Horizontal", 10, 2, 11, 2))
sketch11.addConstraint(Sketcher.Constraint("Horizontal", 11, 2, 14, 2))
sketch11.addConstraint(Sketcher.Constraint("Horizontal", 14, 2, 15, 2))
sketch11.addConstraint(Sketcher.Constraint("Horizontal", 15, 2, 18, 2))
sketch11.addConstraint(Sketcher.Constraint("Horizontal", 18, 2, 19, 2))
sketch11.addConstraint(Sketcher.Constraint("Horizontal", 19, 2, 22, 2))
sketch11.addConstraint(Sketcher.Constraint("Horizontal", 22, 2, 23, 2))
sketch11.addConstraint(Sketcher.Constraint("Horizontal", 23, 2, 26, 2))
sketch11.addConstraint(Sketcher.Constraint("Horizontal", 26, 2, 27, 2))
sketch11.addConstraint(Sketcher.Constraint("Horizontal", 27, 2, 30, 2))
sketch11.addConstraint(Sketcher.Constraint("Horizontal", 27, 3, 31, 2))
sketch11.addConstraint(Sketcher.Constraint("Radius", 1, Q("2.25 mm")))
sketch11.addConstraint(Sketcher.Constraint("DistanceY", 0, 2, 0, 1, Q("2.5 mm")))
sketch11.addConstraint(Sketcher.Constraint("DistanceY", -1, 1, 3, 3, Q("13 mm")))
sketch11.addConstraint(Sketcher.Constraint("DistanceY", -1, 1, 32, 2, Q("12 mm")))
sketch11.addConstraint(Sketcher.Constraint("DistanceX", 1, 3, 3, 3, Q("3 mm")))
sketch11.addConstraint(Sketcher.Constraint("DistanceX", 1, 3, -1, 1, Q("22.5 mm")))
pocket1 = doc.addObject("PartDesign::Pocket", "Pocket")
body.addObject(pocket1)
pocket1.Profile = sketch11
pocket1.Length = 5.5

# Sketch on XZ plane
sketch12 = doc.addObject("Sketcher::SketchObject", "Sketch011")
body.addObject(sketch12)
sketch12.AttachmentSupport = (doc.XZ_Plane, [""])
sketch12.MapMode = "FlatFace"
sketch12.AttachmentOffset = App.Placement(V(0, 0, -6), App.Rotation())
sketch12.addGeometry(Part.Circle(V(26.5, -23.5, 0), V(0, 0, 1), 1.2), False)
sketch12.addConstraint(Sketcher.Constraint("Diameter", 0, Q("2.5 mm")))
sketch12.addConstraint(Sketcher.Constraint("DistanceX", -1, 1, 0, 3, Q("26.5 mm")))
sketch12.addConstraint(Sketcher.Constraint("DistanceY", 0, 3, -1, 1, Q("23.5 mm")))
pocket2 = doc.addObject("PartDesign::Pocket", "Pocket001")
body.addObject(pocket2)
pocket2.Profile = sketch12
pocket2.Length = 15.5
pocket2.Reversed = True

# Sketch on XZ plane
sketch13 = doc.addObject("Sketcher::SketchObject", "Sketch012")
body.addObject(sketch13)
sketch13.AttachmentSupport = (doc.XZ_Plane, [""])
sketch13.MapMode = "FlatFace"
sketch13.AttachmentOffset = App.Placement(V(0, 0, -6), App.Rotation())
sketch13.addGeometry(Part.Circle(V(-26.5, -23.5, 0), V(0, 0, 1), 1.2), False)
sketch13.addConstraint(Sketcher.Constraint("Diameter", 0, Q("2.5 mm")))
sketch13.addConstraint(Sketcher.Constraint("DistanceX", 0, 3, -1, 1, Q("26.5 mm")))
sketch13.addConstraint(Sketcher.Constraint("DistanceY", 0, 3, -1, 1, Q("23.5 mm")))
pocket3 = doc.addObject("PartDesign::Pocket", "Pocket002")
body.addObject(pocket3)
pocket3.Profile = sketch13
pocket3.Length = 15.5
pocket3.Reversed = True

# Sketch on YZ plane
sketch14 = doc.addObject("Sketcher::SketchObject", "Sketch013")
body.addObject(sketch14)
sketch14.AttachmentSupport = (doc.YZ_Plane, [""])
sketch14.MapMode = "FlatFace"
sketch14.AttachmentOffset = App.Placement(V(0, 0, -26), App.Rotation())
add_polygon(sketch14, [(6, 9), (2, 9), (2, 0.5), (6, 0.5)])  # lines 0-3
sketch14.addConstraint(Sketcher.Constraint("Horizontal", 0))
sketch14.addConstraint(Sketcher.Constraint("Vertical", 1))
sketch14.addConstraint(Sketcher.Constraint("Horizontal", 2))
sketch14.addConstraint(Sketcher.Constraint("Vertical", 3))
sketch14.addConstraint(Sketcher.Constraint("DistanceX", 0, 2, 0, 1, Q("4 mm")))
sketch14.addConstraint(Sketcher.Constraint("DistanceY", 1, 2, 1, 1, Q("8.5 mm")))
sketch14.addConstraint(Sketcher.Constraint("DistanceX", -1, 1, 0, 2, Q("2 mm")))
sketch14.addConstraint(Sketcher.Constraint("DistanceY", -1, 1, 0, 2, Q("9 mm")))
pad11 = doc.addObject("PartDesign::Pad", "Pad010")
body.addObject(pad11)
pad11.Profile = sketch14
pad11.Length = 2.5

# Sketch on YZ plane
sketch15 = doc.addObject("Sketcher::SketchObject", "Sketch014")
body.addObject(sketch15)
sketch15.AttachmentSupport = (doc.YZ_Plane, [""])
sketch15.MapMode = "FlatFace"
sketch15.AttachmentOffset = App.Placement(V(0, 0, 26), App.Rotation())
add_polygon(sketch15, [(6, 0.5), (2, 0.5), (2, 9), (6, 9)])  # lines 0-3
sketch15.addConstraint(Sketcher.Constraint("Horizontal", 0))
sketch15.addConstraint(Sketcher.Constraint("Vertical", 1))
sketch15.addConstraint(Sketcher.Constraint("Horizontal", 2))
sketch15.addConstraint(Sketcher.Constraint("Vertical", 3))
sketch15.addConstraint(Sketcher.Constraint("DistanceX", 0, 2, 0, 1, Q("4 mm")))
sketch15.addConstraint(Sketcher.Constraint("DistanceY", 1, 1, 1, 2, Q("8.5 mm")))
sketch15.addConstraint(Sketcher.Constraint("DistanceX", -1, 1, 0, 2, Q("2 mm")))
sketch15.addConstraint(Sketcher.Constraint("DistanceY", -1, 1, 1, 2, Q("9 mm")))
pad12 = doc.addObject("PartDesign::Pad", "Pad011")
body.addObject(pad12)
pad12.Profile = sketch15
pad12.Length = 2.5
pad12.Reversed = True

# Sketch on YZ plane
sketch16 = doc.addObject("Sketcher::SketchObject", "Sketch015")
body.addObject(sketch16)
sketch16.AttachmentSupport = (doc.YZ_Plane, [""])
sketch16.MapMode = "FlatFace"
sketch16.AttachmentOffset = App.Placement(V(0, 0, -28), App.Rotation())
add_polygon(sketch16, [(6, -2), (0, -2), (0, 9), (6, 9)])  # lines 0-3
sketch16.addConstraint(Sketcher.Constraint("Horizontal", 0))
sketch16.addConstraint(Sketcher.Constraint("Vertical", 1))
sketch16.addConstraint(Sketcher.Constraint("Horizontal", 2))
sketch16.addConstraint(Sketcher.Constraint("Vertical", 3))
sketch16.addConstraint(Sketcher.Constraint("PointOnObject", 0, 2, -2))
sketch16.addConstraint(Sketcher.Constraint("DistanceX", 0, 2, 0, 1, Q("6 mm")))
sketch16.addConstraint(Sketcher.Constraint("DistanceY", 1, 1, 1, 2, Q("10.5 mm")))
sketch16.addConstraint(Sketcher.Constraint("DistanceY", -1, 1, 1, 2, Q("9 mm")))
pad13 = doc.addObject("PartDesign::Pad", "Pad012")
body.addObject(pad13)
pad13.Profile = sketch16
pad13.Length = 1.5
pad13.Reversed = True

# Sketch on YZ plane
sketch17 = doc.addObject("Sketcher::SketchObject", "Sketch016")
body.addObject(sketch17)
sketch17.AttachmentSupport = (doc.YZ_Plane, [""])
sketch17.MapMode = "FlatFace"
sketch17.AttachmentOffset = App.Placement(V(0, 0, 28), App.Rotation())
add_polygon(sketch17, [(6, 9), (0, 9), (0, -2), (6, -2)])  # lines 0-3
sketch17.addConstraint(Sketcher.Constraint("Horizontal", 0))
sketch17.addConstraint(Sketcher.Constraint("Vertical", 1))
sketch17.addConstraint(Sketcher.Constraint("Horizontal", 2))
sketch17.addConstraint(Sketcher.Constraint("Vertical", 3))
sketch17.addConstraint(Sketcher.Constraint("PointOnObject", 0, 2, -2))
sketch17.addConstraint(Sketcher.Constraint("DistanceX", 0, 2, 0, 1, Q("6 mm")))
sketch17.addConstraint(Sketcher.Constraint("DistanceY", 1, 2, 1, 1, Q("10.5 mm")))
sketch17.addConstraint(Sketcher.Constraint("DistanceY", -1, 1, 0, 2, Q("9 mm")))
pad14 = doc.addObject("PartDesign::Pad", "Pad013")
body.addObject(pad14)
pad14.Profile = sketch17
pad14.Length = 1.5

# Sketch on XZ plane
sketch18 = doc.addObject("Sketcher::SketchObject", "Sketch017")
body.addObject(sketch18)
sketch18.AttachmentSupport = (doc.XZ_Plane, [""])
sketch18.MapMode = "FlatFace"
sketch18.AttachmentOffset = App.Placement(V(0, 0, -6), App.Rotation())
sketch18.addGeometry(Part.Circle(V(26.5, 3.5, 0), V(0, 0, 1), 1.2), False)
sketch18.addConstraint(Sketcher.Constraint("Diameter", 0, Q("2.5 mm")))
sketch18.addConstraint(Sketcher.Constraint("DistanceX", -1, 1, 0, 3, Q("26.5 mm")))
sketch18.addConstraint(Sketcher.Constraint("DistanceY", -1, 1, 0, 3, Q("3.5 mm")))
pocket4 = doc.addObject("PartDesign::Pocket", "Pocket003")
body.addObject(pocket4)
pocket4.Profile = sketch18
pocket4.Length = 10
pocket4.Reversed = True

# Sketch on XZ plane
sketch19 = doc.addObject("Sketcher::SketchObject", "Sketch018")
body.addObject(sketch19)
sketch19.AttachmentSupport = (doc.XZ_Plane, [""])
sketch19.MapMode = "FlatFace"
sketch19.AttachmentOffset = App.Placement(V(0, 0, -6), App.Rotation())
sketch19.addGeometry(Part.Circle(V(-26.5, 3.5, 0), V(0, 0, 1), 1.2), False)
sketch19.addConstraint(Sketcher.Constraint("Diameter", 0, Q("2.5 mm")))
sketch19.addConstraint(Sketcher.Constraint("DistanceX", 0, 3, -1, 1, Q("26.5 mm")))
sketch19.addConstraint(Sketcher.Constraint("DistanceY", -1, 1, 0, 3, Q("3.5 mm")))
pocket5 = doc.addObject("PartDesign::Pocket", "Pocket004")
body.addObject(pocket5)
pocket5.Profile = sketch19
pocket5.Length = 10
pocket5.Reversed = True
doc.recompute()

chamfer = doc.addObject("PartDesign::Chamfer", "Chamfer")
body.addObject(chamfer)
chamfer.Base = (pocket5, edges_at(pocket5, [
    (-28, 0, 17.75),
    (28, 0, -11),
    (0, 0, 26.5),
    (28, 0, 17.75),
    (-28, 0, -11),
]))
chamfer.Size = 1

doc.recompute()
